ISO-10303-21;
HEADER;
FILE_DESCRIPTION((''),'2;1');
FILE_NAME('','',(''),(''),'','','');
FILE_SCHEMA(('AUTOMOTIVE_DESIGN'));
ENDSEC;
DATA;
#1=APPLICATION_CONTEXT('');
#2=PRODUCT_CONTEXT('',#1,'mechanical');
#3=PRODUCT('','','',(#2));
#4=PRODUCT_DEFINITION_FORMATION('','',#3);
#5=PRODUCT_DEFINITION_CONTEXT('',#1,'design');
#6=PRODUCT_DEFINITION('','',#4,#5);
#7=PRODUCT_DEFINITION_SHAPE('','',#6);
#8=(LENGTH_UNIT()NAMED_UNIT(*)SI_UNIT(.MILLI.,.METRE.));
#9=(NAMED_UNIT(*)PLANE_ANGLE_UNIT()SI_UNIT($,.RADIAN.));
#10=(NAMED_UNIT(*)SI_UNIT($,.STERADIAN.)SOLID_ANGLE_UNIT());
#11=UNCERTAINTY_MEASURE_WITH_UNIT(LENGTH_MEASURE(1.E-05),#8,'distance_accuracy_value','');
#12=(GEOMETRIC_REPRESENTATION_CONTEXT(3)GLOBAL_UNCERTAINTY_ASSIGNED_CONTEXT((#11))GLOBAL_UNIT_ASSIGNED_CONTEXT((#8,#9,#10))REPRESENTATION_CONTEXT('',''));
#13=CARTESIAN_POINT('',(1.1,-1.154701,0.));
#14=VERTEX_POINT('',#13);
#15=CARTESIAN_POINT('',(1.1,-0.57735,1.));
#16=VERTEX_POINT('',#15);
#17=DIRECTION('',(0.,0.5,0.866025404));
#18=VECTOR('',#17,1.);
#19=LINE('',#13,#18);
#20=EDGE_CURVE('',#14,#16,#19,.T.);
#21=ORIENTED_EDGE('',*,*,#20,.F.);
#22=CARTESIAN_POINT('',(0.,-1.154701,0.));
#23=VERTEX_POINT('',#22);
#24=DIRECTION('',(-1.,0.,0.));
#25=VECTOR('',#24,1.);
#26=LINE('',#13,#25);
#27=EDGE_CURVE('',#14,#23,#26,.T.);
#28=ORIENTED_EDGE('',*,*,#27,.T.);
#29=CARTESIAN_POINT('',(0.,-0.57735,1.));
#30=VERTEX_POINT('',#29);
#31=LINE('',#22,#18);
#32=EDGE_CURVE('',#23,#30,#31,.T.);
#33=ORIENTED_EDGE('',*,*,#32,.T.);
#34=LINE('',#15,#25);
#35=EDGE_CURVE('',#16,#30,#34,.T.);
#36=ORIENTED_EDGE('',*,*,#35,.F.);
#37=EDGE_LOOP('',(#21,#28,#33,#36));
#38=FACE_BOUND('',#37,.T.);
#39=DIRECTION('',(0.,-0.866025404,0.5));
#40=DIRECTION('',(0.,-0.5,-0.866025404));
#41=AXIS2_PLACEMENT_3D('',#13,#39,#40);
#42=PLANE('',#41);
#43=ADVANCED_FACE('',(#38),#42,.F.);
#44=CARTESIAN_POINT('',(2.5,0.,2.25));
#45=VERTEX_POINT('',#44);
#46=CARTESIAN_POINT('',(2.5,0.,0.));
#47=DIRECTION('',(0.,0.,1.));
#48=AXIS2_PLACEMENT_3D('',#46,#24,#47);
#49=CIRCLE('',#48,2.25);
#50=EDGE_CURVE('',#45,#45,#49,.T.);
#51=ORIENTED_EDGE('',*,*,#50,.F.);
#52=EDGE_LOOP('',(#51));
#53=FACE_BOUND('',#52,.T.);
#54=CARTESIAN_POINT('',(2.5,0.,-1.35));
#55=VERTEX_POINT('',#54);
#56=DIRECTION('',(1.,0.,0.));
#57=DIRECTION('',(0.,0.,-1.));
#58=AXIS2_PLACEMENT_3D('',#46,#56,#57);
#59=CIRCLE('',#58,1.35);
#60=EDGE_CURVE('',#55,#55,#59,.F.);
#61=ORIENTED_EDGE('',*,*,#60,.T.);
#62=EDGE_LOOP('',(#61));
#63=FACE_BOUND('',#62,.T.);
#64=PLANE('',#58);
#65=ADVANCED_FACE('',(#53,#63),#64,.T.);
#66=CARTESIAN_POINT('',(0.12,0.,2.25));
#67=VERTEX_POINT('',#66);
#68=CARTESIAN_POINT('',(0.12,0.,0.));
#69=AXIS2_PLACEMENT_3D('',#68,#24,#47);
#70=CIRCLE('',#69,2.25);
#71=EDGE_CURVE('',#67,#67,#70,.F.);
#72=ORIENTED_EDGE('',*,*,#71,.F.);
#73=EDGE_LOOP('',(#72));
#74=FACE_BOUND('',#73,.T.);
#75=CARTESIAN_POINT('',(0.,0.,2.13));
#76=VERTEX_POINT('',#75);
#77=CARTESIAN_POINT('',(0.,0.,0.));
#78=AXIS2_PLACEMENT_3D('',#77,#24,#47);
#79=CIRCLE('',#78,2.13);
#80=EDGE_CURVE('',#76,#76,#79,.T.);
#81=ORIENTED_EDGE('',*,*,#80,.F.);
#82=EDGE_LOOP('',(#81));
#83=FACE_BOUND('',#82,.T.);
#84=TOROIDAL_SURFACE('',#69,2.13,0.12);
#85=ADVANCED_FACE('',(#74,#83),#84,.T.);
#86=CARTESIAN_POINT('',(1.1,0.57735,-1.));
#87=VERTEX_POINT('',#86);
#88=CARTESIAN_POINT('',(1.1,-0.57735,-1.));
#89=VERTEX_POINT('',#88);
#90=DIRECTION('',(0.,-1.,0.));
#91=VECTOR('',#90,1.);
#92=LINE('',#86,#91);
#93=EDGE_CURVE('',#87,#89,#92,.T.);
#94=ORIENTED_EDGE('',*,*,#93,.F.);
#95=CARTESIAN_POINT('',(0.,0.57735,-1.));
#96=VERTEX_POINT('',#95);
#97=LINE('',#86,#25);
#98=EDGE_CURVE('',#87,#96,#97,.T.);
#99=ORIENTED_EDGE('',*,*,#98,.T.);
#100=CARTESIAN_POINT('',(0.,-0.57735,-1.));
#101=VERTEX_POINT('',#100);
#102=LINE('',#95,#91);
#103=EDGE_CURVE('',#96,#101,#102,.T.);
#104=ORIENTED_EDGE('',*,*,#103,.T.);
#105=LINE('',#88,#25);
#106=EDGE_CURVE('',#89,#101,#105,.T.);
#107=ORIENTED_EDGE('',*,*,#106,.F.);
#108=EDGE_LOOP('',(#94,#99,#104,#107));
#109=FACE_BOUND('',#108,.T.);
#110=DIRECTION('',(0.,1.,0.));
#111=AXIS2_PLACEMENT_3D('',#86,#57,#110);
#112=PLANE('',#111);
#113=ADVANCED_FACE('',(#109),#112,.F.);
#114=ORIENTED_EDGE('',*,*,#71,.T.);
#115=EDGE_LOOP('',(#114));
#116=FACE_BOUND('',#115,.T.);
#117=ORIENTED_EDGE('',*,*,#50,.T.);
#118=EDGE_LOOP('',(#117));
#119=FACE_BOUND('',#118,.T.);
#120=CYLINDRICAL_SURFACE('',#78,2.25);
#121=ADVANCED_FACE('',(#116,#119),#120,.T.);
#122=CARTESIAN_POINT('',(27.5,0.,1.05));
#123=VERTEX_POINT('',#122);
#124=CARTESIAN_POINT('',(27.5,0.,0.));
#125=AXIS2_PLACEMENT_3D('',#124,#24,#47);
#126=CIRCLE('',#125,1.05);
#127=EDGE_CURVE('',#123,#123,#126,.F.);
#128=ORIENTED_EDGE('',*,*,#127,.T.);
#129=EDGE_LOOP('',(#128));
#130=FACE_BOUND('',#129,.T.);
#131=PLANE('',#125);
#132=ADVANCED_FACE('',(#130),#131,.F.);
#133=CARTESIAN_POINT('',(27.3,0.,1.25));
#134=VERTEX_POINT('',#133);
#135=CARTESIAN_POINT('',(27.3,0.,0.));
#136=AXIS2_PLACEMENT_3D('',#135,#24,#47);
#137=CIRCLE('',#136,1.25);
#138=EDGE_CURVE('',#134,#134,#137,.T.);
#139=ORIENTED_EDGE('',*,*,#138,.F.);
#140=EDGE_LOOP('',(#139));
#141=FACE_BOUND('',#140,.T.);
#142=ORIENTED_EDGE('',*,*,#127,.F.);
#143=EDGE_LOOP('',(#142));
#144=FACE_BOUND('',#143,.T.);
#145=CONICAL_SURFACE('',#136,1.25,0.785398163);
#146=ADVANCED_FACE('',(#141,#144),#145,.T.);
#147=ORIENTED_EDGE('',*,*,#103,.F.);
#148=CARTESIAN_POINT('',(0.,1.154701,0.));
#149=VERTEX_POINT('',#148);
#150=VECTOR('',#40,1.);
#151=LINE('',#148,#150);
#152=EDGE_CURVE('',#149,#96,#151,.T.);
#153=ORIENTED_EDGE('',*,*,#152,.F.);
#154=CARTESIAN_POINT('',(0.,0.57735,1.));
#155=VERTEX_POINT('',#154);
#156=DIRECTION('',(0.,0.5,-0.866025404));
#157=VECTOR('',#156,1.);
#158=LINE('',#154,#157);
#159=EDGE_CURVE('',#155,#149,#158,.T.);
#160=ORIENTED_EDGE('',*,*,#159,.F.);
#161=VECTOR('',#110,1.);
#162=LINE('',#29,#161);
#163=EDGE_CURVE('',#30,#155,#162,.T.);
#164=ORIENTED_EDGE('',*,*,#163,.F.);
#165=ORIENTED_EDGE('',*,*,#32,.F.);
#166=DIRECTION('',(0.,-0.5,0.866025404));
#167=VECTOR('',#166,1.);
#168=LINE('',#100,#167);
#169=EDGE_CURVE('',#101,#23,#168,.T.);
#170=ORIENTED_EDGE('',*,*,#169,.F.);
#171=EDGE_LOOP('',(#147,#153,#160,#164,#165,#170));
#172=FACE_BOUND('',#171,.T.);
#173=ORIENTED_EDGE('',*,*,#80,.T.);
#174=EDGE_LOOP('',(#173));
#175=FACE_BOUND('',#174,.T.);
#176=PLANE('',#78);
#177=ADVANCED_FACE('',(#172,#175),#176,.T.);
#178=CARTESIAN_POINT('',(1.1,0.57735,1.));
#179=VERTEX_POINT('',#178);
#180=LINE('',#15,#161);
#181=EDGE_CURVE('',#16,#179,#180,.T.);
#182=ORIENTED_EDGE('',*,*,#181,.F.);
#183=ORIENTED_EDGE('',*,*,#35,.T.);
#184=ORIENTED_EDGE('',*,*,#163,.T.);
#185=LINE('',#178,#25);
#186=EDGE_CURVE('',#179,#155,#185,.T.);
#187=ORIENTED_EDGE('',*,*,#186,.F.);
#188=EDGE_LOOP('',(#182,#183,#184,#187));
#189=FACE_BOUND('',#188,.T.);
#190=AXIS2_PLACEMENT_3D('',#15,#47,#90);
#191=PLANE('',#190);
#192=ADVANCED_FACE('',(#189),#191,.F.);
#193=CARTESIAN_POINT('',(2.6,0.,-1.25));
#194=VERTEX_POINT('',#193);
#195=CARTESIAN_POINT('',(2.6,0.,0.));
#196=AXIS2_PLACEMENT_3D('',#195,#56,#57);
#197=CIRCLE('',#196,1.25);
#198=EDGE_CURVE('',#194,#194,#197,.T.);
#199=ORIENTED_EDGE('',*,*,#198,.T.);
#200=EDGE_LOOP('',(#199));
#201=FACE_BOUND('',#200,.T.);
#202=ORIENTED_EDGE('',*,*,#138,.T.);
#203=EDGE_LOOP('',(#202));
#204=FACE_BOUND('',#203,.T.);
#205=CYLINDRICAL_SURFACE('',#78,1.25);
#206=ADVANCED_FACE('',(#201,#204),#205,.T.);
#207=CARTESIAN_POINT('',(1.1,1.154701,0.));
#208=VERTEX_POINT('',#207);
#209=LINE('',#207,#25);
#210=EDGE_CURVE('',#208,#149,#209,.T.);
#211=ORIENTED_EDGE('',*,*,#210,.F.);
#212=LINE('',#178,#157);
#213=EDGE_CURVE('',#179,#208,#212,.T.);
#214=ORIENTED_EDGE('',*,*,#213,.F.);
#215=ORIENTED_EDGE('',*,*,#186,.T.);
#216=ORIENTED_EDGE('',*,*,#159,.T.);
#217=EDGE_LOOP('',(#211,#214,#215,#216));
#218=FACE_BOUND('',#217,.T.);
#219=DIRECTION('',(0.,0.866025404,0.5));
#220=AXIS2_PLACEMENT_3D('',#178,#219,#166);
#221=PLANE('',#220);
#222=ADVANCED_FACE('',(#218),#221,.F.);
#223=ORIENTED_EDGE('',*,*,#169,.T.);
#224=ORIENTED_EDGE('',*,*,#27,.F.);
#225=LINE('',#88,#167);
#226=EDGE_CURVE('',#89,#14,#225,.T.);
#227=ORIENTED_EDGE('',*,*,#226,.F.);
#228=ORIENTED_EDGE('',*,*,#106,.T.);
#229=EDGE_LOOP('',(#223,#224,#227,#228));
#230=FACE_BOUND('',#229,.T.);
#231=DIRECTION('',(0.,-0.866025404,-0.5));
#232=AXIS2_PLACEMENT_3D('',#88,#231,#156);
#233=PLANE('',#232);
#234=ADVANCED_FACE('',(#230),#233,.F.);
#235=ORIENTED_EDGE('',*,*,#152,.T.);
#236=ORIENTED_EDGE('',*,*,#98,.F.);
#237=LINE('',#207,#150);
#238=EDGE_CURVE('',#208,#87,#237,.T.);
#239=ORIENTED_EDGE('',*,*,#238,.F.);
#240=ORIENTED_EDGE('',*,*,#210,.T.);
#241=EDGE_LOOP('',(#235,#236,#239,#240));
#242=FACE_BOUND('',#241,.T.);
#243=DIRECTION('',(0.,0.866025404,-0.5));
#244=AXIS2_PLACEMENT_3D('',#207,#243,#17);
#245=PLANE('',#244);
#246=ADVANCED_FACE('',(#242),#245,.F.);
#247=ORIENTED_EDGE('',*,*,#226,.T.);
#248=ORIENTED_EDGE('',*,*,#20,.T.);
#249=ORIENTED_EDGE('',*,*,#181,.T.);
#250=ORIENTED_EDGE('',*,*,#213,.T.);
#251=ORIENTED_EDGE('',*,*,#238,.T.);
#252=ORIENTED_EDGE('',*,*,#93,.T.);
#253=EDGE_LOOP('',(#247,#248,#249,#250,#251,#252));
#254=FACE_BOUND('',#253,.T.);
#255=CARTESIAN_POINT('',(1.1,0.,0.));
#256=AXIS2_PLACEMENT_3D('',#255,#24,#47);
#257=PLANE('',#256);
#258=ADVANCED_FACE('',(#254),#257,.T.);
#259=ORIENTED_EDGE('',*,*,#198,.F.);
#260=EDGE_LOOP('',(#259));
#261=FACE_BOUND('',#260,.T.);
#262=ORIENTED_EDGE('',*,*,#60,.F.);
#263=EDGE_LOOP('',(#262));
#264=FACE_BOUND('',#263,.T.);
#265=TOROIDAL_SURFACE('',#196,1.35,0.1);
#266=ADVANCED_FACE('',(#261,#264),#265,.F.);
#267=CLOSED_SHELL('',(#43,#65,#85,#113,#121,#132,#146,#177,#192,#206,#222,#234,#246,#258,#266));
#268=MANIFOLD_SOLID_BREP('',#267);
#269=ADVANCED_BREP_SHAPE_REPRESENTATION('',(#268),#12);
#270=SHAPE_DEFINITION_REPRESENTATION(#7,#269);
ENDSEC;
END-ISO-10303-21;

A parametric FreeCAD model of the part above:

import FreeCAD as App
import Part
import Sketcher
from FreeCAD import Vector
Q = App.Units.Quantity


def edges_at(feature, points):
    """Names of the edges that pass closest to the given points."""
    edges = feature.Shape.Edges
    near = lambda p: min(range(len(edges)), key=lambda i: edges[i].distToShape(Part.Vertex(*p))[0])
    return sorted({f"Edge{near(p) + 1}" for p in points})


def add_polygon(sketch, points):
    """Adds a closed chain of lines whose ends are joined by coincident constraints."""
    first, n = sketch.GeometryCount, len(points)
    for a, b in zip(points, points[1:] + points[:1]):
        sketch.addGeometry(Part.LineSegment(App.Vector(*a, 0), App.Vector(*b, 0)), False)
    for i in range(n):
        sketch.addConstraint(Sketcher.Constraint("Coincident", first + i, 2, first + (i + 1) % n, 1))

doc = App.newDocument("Part")
body = doc.addObject("PartDesign::Body", "Body")

# Sketch on XY plane
sketch1 = body.newObject("Sketcher::SketchObject", "Sketch")
sketch1.AttachmentSupport = (doc.getObject("XY_Plane"), [""])
sketch1.MapMode = "FlatFace"
add_polygon(sketch1, [(27.5, 0), (27.5, 1.25), (2.5, 1.25), (2.5, 2.25), (0, 2.25), (0, 0)])  # lines 0-5
sketch1.addConstraint(Sketcher.Constraint("Vertical", 0))
sketch1.addConstraint(Sketcher.Constraint("Horizontal", 1))
sketch1.addConstraint(Sketcher.Constraint("Vertical", 2))
sketch1.addConstraint(Sketcher.Constraint("Horizontal", 3))
sketch1.addConstraint(Sketcher.Constraint("Vertical", 4))
sketch1.addConstraint(Sketcher.Constraint("Horizontal", 5))
sketch1.addConstraint(Sketcher.Constraint("Coincident", 4, 2, -1, 1))
sketch1.addConstraint(Sketcher.Constraint("DistanceX", 1, 2, 1, 1, Q("25 mm")))
sketch1.addConstraint(Sketcher.Constraint("DistanceY", 2, 1, 2, 2, Q("1 mm")))
sketch1.addConstraint(Sketcher.Constraint("DistanceX", 3, 2, 3, 1, Q("2.5 mm")))
sketch1.addConstraint(Sketcher.Constraint("DistanceY", 0, 1, 0, 2, Q("1.25 mm")))
revolution = body.newObject("PartDesign::Revolution", "Revolution")
revolution.Profile = sketch1
revolution.ReferenceAxis = (sketch1, ["H_Axis"])
revolution.Angle = 360
doc.recompute()

fillet = body.newObject("PartDesign::Fillet", "Fillet")
fillet.Base = (revolution, edges_at(revolution, [(2.5, 0, -1.25)]))
fillet.Radius = 0.1
doc.recompute()

fillet2 = body.newObject("PartDesign::Fillet", "Fillet001")
fillet2.Base = (fillet, edges_at(fillet, [(0, 0, -2.25)]))
fillet2.Radius = 0.12
doc.recompute()

chamfer = body.newObject("PartDesign::Chamfer", "Chamfer")
chamfer.Base = (fillet2, edges_at(fillet2, [(27.5, 0, -1.25)]))
chamfer.Size = 0.2

# Sketch on YZ plane
sketch2 = body.newObject("Sketcher::SketchObject", "Sketch001")
sketch2.AttachmentSupport = (doc.getObject("YZ_Plane"), [""])
sketch2.MapMode = "FlatFace"
add_polygon(sketch2, [(1.154701, 0), (0.57735, -1), (-0.57735, -1), (-1.154701, 0), (-0.57735, 1), (0.57735, 1)])  # lines 0-5
sketch2.addConstraint(Sketcher.Constraint("Horizontal", 1))
sketch2.addConstraint(Sketcher.Constraint("Horizontal", 4))
sketch2.addConstraint(Sketcher.Constraint("Symmetric", 0, 2, 3, 2, -1, 1))
sketch2.addConstraint(Sketcher.Constraint("Symmetric", 2, 2, 5, 2, -1, 1))
sketch2.addConstraint(Sketcher.Constraint("PointOnObject", 2, 2, -1))
sketch2.addConstraint(Sketcher.Constraint("Parallel", 2, 5))
sketch2.addConstraint(Sketcher.Constraint("Vertical", 1, 2, 3, 2))
sketch2.addConstraint(Sketcher.Constraint("Angle", 0, Q("-120 deg")))
sketch2.addConstraint(Sketcher.Constraint("DistanceY", 0, 2, -1, 1, Q("1 mm")))
sketch2.addConstraint(Sketcher.Constraint("DistanceX", 1, 2, 1, 1, Q("1.154701 mm")))
pocket1 = body.newObject("PartDesign::Pocket", "Pocket")
pocket1.Profile = sketch2
pocket1.Length = 1.1
pocket1.Reversed = True

doc.recompute()
